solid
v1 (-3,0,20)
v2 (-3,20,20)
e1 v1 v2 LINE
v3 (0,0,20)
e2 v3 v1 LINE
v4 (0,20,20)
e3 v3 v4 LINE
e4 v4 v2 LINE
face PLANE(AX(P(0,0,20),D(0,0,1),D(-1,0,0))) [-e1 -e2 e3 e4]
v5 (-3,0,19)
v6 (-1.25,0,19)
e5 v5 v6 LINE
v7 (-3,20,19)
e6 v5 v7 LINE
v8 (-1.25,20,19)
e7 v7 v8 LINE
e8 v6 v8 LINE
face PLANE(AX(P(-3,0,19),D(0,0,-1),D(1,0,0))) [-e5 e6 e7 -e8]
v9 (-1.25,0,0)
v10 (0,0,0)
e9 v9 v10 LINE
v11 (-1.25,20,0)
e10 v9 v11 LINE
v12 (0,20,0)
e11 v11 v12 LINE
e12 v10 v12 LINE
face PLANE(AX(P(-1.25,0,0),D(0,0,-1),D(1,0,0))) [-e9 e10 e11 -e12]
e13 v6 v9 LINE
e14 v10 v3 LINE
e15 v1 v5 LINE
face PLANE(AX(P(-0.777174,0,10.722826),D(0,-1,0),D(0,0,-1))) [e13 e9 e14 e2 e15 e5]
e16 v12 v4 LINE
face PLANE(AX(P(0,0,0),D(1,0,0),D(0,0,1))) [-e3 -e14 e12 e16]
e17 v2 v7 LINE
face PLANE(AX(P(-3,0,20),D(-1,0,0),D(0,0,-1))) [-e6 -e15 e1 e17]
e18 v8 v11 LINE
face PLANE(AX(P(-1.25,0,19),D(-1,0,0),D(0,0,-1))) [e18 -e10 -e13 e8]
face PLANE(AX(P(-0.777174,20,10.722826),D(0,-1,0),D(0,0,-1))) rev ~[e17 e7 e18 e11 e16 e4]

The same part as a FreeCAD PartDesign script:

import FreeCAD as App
import Part
import Sketcher
from FreeCAD import Vector


def add_polygon(sketch, points):
    """Adds a closed chain of lines whose ends are joined by coincident constraints."""
    first, n = sketch.GeometryCount, len(points)
    for a, b in zip(points, points[1:] + points[:1]):
        sketch.addGeometry(Part.LineSegment(App.Vector(*a, 0), App.Vector(*b, 0)), False)
    for i in range(n):
        sketch.addConstraint(Sketcher.Constraint("Coincident", first + i, 2, first + (i + 1) % n, 1))

doc = App.newDocument("Part")
body = doc.addObject("PartDesign::Body", "Body")

sketch1 = body.newObject("Sketcher::SketchObject", "Sketch")
sketch1.AttachmentSupport = (doc.getObject("XZ_Plane"), [""])
sketch1.MapMode = "FlatFace"
add_polygon(sketch1, [(-1.25, 0), (0, 0), (0, 20), (-3, 20), (-3, 19), (-1.25, 19)])
sketch1.addConstraint([
    Sketcher.Constraint("Horizontal", 0),
    Sketcher.Constraint("Vertical", 1),
    Sketcher.Constraint("Horizontal", 2),
    Sketcher.Constraint("Vertical", 3),
    Sketcher.Constraint("Horizontal", 4),
    Sketcher.Constraint("Vertical", 5),
    Sketcher.Constraint("Coincident", 0, 2, -1, 1),
    Sketcher.Constraint("DistanceX", 2, 2, 2, 1, 3.0),
    Sketcher.Constraint("DistanceY", 1, 1, 1, 2, 20.0),
    Sketcher.Constraint("DistanceY", 3, 2, 3, 1, 1.0),
    Sketcher.Constraint("DistanceX", 0, 1, 0, 2, 1.25),
])
pad1 = body.newObject("PartDesign::Pad", "Pad")
pad1.Profile = sketch1
pad1.Length = 20
pad1.Reversed = True

doc.recompute()
